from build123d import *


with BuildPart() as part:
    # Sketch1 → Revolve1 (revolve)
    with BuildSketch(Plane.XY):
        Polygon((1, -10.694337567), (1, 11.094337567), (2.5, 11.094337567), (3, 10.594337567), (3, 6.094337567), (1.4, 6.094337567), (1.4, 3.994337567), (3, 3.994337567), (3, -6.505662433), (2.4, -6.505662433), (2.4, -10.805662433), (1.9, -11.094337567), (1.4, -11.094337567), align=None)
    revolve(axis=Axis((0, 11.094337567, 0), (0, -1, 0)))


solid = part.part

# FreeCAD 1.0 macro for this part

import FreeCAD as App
import Part
import Sketcher
Q = App.Units.Quantity

doc = App.newDocument("Part")
body = doc.addObject("PartDesign::Body", "Body")

# Sketch on XY plane
sketch1 = body.newObject("Sketcher::SketchObject", "Sketch")
sketch1.AttachmentSupport = (doc.getObject("XY_Plane"), [""])
sketch1.MapMode = "FlatFace"
sketch1.addGeometry(Part.LineSegment(App.Vector(1, 11.1, 0), App.Vector(1, -10.7, 0)), False)
sketch1.addGeometry(Part.LineSegment(App.Vector(1, -10.7, 0), App.Vector(1.4, -11.1, 0)), False)
sketch1.addGeometry(Part.LineSegment(App.Vector(1.4, -11.1, 0), App.Vector(1.9, -11.1, 0)), False)
sketch1.addGeometry(Part.LineSegment(App.Vector(1.9, -11.1, 0), App.Vector(2.4, -10.8, 0)), False)
sketch1.addGeometry(Part.LineSegment(App.Vector(2.4, -10.8, 0), App.Vector(2.4, -6.5, 0)), False)
sketch1.addGeometry(Part.LineSegment(App.Vector(2.4, -6.5, 0), App.Vector(3, -6.5, 0)), False)
sketch1.addGeometry(Part.LineSegment(App.Vector(3, -6.5, 0), App.Vector(3, 4, 0)), False)
sketch1.addGeometry(Part.LineSegment(App.Vector(3, 4, 0), App.Vector(1.4, 4, 0)), False)
sketch1.addGeometry(Part.LineSegment(App.Vector(1.4, 4, 0), App.Vector(1.4, 6.1, 0)), False)
sketch1.addGeometry(Part.LineSegment(App.Vector(1.4, 6.1, 0), App.Vector(3, 6.1, 0)), False)
sketch1.addGeometry(Part.LineSegment(App.Vector(3, 6.1, 0), App.Vector(3, 10.6, 0)), False)
sketch1.addGeometry(Part.LineSegment(App.Vector(3, 10.6, 0), App.Vector(2.5, 11.1, 0)), False)
sketch1.addGeometry(Part.LineSegment(App.Vector(2.5, 11.1, 0), App.Vector(1, 11.1, 0)), False)
sketch1.addConstraint(Sketcher.Constraint("Coincident", 0, 2, 1, 1))
sketch1.addConstraint(Sketcher.Constraint("Coincident", 1, 2, 2, 1))
sketch1.addConstraint(Sketcher.Constraint("Coincident", 2, 2, 3, 1))
sketch1.addConstraint(Sketcher.Constraint("Coincident", 3, 2, 4, 1))
sketch1.addConstraint(Sketcher.Constraint("Coincident", 4, 2, 5, 1))
sketch1.addConstraint(Sketcher.Constraint("Coincident", 5, 2, 6, 1))
sketch1.addConstraint(Sketcher.Constraint("Coincident", 6, 2, 7, 1))
sketch1.addConstraint(Sketcher.Constraint("Coincident", 7, 2, 8, 1))
sketch1.addConstraint(Sketcher.Constraint("Coincident", 8, 2, 9, 1))
sketch1.addConstraint(Sketcher.Constraint("Coincident", 9, 2, 10, 1))
sketch1.addConstraint(Sketcher.Constraint("Coincident", 10, 2, 11, 1))
sketch1.addConstraint(Sketcher.Constraint("Coincident", 11, 2, 12, 1))
sketch1.addConstraint(Sketcher.Constraint("Coincident", 12, 2, 0, 1))
sketch1.addConstraint(Sketcher.Constraint("Vertical", 0))
sketch1.addConstraint(Sketcher.Constraint("Horizontal", 2))
sketch1.addConstraint(Sketcher.Constraint("Vertical", 4))
sketch1.addConstraint(Sketcher.Constraint("Horizontal", 5))
sketch1.addConstraint(Sketcher.Constraint("Vertical", 6))
sketch1.addConstraint(Sketcher.Constraint("Horizontal", 7))
sketch1.addConstraint(Sketcher.Constraint("Vertical", 8))
sketch1.addConstraint(Sketcher.Constraint("Horizontal", 9))
sketch1.addConstraint(Sketcher.Constraint("Vertical", 10))
sketch1.addConstraint(Sketcher.Constraint("Horizontal", 12))
sketch1.addConstraint(Sketcher.Constraint("Parallel", 1, 11))
sketch1.addConstraint(Sketcher.Constraint("Vertical", 1, 2, 7, 2))
sketch1.addConstraint(Sketcher.Constraint("Vertical", 6, 2, 9, 2))
sketch1.addConstraint(Sketcher.Constraint("Angle", 1, Q("-45 deg")))
sketch1.addConstraint(Sketcher.Constraint("Angle", 3, Q("30 deg")))
sketch1.addConstraint(Sketcher.Constraint("DistanceX", 2, 1, 2, 2, 0.5))
sketch1.addConstraint(Sketcher.Constraint("DistanceX", 5, 1, 5, 2, 0.6))
sketch1.addConstraint(Sketcher.Constraint("DistanceX", 7, 2, 7, 1, 1.6))
sketch1.addConstraint(Sketcher.Constraint("DistanceX", 12, 2, 12, 1, 1.5))
sketch1.addConstraint(Sketcher.Constraint("DistanceY", 4, 1, 4, 2, 4.3))
sketch1.addConstraint(Sketcher.Constraint("DistanceY", 6, 1, 6, 2, 10.5))
sketch1.addConstraint(Sketcher.Constraint("DistanceY", 8, 1, 8, 2, 2.1))
sketch1.addConstraint(Sketcher.Constraint("DistanceY", 10, 1, 10, 2, 4.5))
sketch1.addConstraint(Sketcher.Constraint("DistanceX", -1, 1, 0, 2, 1.0))
sketch1.addConstraint(Sketcher.Constraint("DistanceX", -1, 1, 5, 2, 3.0))
sketch1.addConstraint(Sketcher.Constraint("DistanceY", 0, 2, -1, 1, 10.694338))
revolution = body.newObject("PartDesign::Revolution", "Revolution")
revolution.Profile = sketch1
revolution.ReferenceAxis = (sketch1, ["V_Axis"])
revolution.Angle = 360

doc.recompute()
